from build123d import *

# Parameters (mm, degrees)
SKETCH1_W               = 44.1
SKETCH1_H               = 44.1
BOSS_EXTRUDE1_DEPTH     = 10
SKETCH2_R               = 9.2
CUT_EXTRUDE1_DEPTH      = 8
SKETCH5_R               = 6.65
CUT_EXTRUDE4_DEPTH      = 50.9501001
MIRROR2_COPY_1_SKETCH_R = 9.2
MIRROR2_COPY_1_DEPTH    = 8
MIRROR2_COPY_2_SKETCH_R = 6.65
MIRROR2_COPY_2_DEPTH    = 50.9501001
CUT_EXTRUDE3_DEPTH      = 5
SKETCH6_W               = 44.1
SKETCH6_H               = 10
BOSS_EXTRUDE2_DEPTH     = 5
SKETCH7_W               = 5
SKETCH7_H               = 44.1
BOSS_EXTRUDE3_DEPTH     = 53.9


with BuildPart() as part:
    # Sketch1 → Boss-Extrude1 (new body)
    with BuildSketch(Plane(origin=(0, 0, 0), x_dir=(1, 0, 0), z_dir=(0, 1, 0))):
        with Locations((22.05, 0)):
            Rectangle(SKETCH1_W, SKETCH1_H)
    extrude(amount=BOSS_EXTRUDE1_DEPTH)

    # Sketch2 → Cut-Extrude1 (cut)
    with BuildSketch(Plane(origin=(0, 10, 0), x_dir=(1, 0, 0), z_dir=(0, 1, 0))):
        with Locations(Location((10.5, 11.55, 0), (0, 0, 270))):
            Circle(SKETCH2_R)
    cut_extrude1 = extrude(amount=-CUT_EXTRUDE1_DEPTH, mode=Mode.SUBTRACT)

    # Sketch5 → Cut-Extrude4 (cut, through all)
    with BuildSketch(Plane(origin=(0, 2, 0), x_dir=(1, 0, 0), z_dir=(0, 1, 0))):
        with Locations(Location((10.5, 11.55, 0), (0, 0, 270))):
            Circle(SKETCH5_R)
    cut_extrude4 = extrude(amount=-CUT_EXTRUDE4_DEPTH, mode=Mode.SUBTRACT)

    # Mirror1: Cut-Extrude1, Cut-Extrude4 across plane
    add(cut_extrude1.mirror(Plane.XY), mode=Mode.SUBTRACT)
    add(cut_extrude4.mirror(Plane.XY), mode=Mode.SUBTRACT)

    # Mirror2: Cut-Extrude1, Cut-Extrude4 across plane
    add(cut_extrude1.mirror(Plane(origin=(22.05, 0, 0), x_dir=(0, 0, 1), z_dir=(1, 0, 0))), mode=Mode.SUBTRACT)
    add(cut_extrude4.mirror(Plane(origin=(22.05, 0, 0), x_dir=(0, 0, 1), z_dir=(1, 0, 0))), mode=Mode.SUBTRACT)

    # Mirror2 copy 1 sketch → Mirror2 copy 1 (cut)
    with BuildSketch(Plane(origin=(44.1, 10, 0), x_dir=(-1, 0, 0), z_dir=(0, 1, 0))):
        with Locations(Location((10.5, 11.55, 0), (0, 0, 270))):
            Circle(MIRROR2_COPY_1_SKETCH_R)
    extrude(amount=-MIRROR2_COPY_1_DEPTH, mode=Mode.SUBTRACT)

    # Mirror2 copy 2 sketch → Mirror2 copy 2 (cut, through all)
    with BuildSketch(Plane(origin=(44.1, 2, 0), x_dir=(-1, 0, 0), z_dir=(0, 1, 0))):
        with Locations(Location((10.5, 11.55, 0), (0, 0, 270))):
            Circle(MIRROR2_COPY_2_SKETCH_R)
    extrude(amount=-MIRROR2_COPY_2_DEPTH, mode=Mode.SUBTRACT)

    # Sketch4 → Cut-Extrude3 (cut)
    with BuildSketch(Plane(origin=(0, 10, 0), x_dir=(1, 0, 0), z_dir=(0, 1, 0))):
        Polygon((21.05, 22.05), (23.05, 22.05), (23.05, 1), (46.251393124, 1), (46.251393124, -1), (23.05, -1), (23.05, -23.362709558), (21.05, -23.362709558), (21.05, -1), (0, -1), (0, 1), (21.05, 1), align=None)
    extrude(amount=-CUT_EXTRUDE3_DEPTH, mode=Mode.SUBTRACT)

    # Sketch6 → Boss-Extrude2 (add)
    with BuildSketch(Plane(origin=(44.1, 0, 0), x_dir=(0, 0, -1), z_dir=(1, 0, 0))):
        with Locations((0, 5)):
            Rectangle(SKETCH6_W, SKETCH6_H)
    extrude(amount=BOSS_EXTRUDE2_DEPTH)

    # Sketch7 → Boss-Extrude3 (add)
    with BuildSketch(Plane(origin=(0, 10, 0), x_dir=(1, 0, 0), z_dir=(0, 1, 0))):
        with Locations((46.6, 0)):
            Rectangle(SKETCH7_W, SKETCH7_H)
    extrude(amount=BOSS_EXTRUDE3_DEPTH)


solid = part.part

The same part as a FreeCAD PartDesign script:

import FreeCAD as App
import Part
import Sketcher
Q = App.Units.Quantity


def add_polygon(sketch, points):
    """Adds a closed chain of lines whose ends are joined by coincident constraints."""
    first, n = sketch.GeometryCount, len(points)
    for a, b in zip(points, points[1:] + points[:1]):
        sketch.addGeometry(Part.LineSegment(App.Vector(*a, 0), App.Vector(*b, 0)), False)
    for i in range(n):
        sketch.addConstraint(Sketcher.Constraint("Coincident", first + i, 2, first + (i + 1) % n, 1))

doc = App.newDocument("Part")
body = doc.addObject("PartDesign::Body", "Body")

sketch1 = body.newObject("Sketcher::SketchObject", "Sketch")
sketch1.AttachmentSupport = (doc.getObject("XZ_Plane"), [""])
sketch1.MapMode = "FlatFace"
add_polygon(sketch1, [(0, -22), (0, 22), (44, 22), (44, -22)])
sketch1.addConstraint([
    Sketcher.Constraint("Vertical", 0),
    Sketcher.Constraint("Horizontal", 1),
    Sketcher.Constraint("Vertical", 2),
    Sketcher.Constraint("Horizontal", 3),
    Sketcher.Constraint("Symmetric", 0, 2, 3, 2, -1, 1),
    Sketcher.Constraint("Equal", 3, 0),
    Sketcher.Constraint("DistanceX", 1, 1, 1, 2, Q("44.1 mm")),
])
pad1 = body.newObject("PartDesign::Pad", "Pad")
pad1.Profile = sketch1
pad1.Length = 10
pad1.Reversed = True

sketch2 = body.newObject("Sketcher::SketchObject", "Sketch001")
sketch2.AttachmentSupport = (doc.getObject("XZ_Plane"), [""])
sketch2.MapMode = "FlatFace"
sketch2.AttachmentOffset = App.Placement(App.Vector(0, 0, -10), App.Rotation())
sketch2.addGeometry(Part.Circle(App.Vector(10, -12, 0), App.Vector(0, 0, 1), 9), False)
sketch2.addConstraint([
    Sketcher.Constraint("Diameter", 0, Q("18.4 mm")),
    Sketcher.Constraint("DistanceX", -1, 1, 0, 3, Q("10.5 mm")),
    Sketcher.Constraint("DistanceY", 0, 3, -1, 1, Q("11.55 mm")),
])
pocket1 = body.newObject("PartDesign::Pocket", "Pocket")
pocket1.Profile = sketch2
pocket1.Length = 8
pocket1.Reversed = True

sketch3 = body.newObject("Sketcher::SketchObject", "Sketch002")
sketch3.AttachmentSupport = (doc.getObject("XZ_Plane"), [""])
sketch3.MapMode = "FlatFace"
sketch3.AttachmentOffset = App.Placement(App.Vector(0, 0, -2), App.Rotation())
sketch3.addGeometry(Part.Circle(App.Vector(10, -12, 0), App.Vector(0, 0, 1), 7), False)
sketch3.addConstraint([
    Sketcher.Constraint("Diameter", 0, Q("13.3 mm")),
    Sketcher.Constraint("DistanceX", -1, 1, 0, 3, Q("10.5 mm")),
    Sketcher.Constraint("DistanceY", 0, 3, -1, 1, Q("11.55 mm")),
])
pocket2 = body.newObject("PartDesign::Pocket", "Pocket001")
pocket2.Profile = sketch3
pocket2.Type = "ThroughAll"
pocket2.Reversed = True
doc.recompute()

mirrored = body.newObject("PartDesign::Mirrored", "Mirrored")
mirrored.Originals = [pocket1, pocket2]
mirrored.MirrorPlane = (doc.getObject("XY_Plane"), [""])
body.Tip = mirrored
doc.recompute()

datumplane = body.newObject("PartDesign::Plane", "DatumPlane")
datumplane.AttachmentSupport = (doc.getObject("YZ_Plane"), [""])
datumplane.MapMode = "FlatFace"
datumplane.AttachmentOffset = App.Placement(App.Vector(0, 0, 22.05), App.Rotation())
mirrored2 = body.newObject("PartDesign::Mirrored", "Mirrored001")
mirrored2.Originals = [pocket1, pocket2]
mirrored2.MirrorPlane = (datumplane, [""])
body.Tip = mirrored2

sketch4 = body.newObject("Sketcher::SketchObject", "Sketch003")
sketch4.AttachmentSupport = (doc.getObject("XZ_Plane"), [""])
sketch4.MapMode = "FlatFace"
sketch4.AttachmentOffset = App.Placement(App.Vector(0, 0, -10), App.Rotation())
sketch4.addGeometry(Part.Circle(App.Vector(34, 12, 0), App.Vector(0, 0, 1), 9), False)
sketch4.addConstraint([
    Sketcher.Constraint("Diameter", 0, Q("18.4 mm")),
    Sketcher.Constraint("DistanceX", -1, 1, 0, 3, Q("33.6 mm")),
    Sketcher.Constraint("DistanceY", -1, 1, 0, 3, Q("11.55 mm")),
])
pocket3 = body.newObject("PartDesign::Pocket", "Pocket002")
pocket3.Profile = sketch4
pocket3.Length = 8
pocket3.Reversed = True

sketch5 = body.newObject("Sketcher::SketchObject", "Sketch004")
sketch5.AttachmentSupport = (doc.getObject("XZ_Plane"), [""])
sketch5.MapMode = "FlatFace"
sketch5.AttachmentOffset = App.Placement(App.Vector(0, 0, -2), App.Rotation())
sketch5.addGeometry(Part.Circle(App.Vector(34, 12, 0), App.Vector(0, 0, 1), 7), False)
sketch5.addConstraint([
    Sketcher.Constraint("Diameter", 0, Q("13.3 mm")),
    Sketcher.Constraint("DistanceX", -1, 1, 0, 3, Q("33.6 mm")),
    Sketcher.Constraint("DistanceY", -1, 1, 0, 3, Q("11.55 mm")),
])
pocket4 = body.newObject("PartDesign::Pocket", "Pocket003")
pocket4.Profile = sketch5
pocket4.Type = "ThroughAll"
pocket4.Reversed = True

sketch6 = body.newObject("Sketcher::SketchObject", "Sketch005")
sketch6.AttachmentSupport = (doc.getObject("XZ_Plane"), [""])
sketch6.MapMode = "FlatFace"
sketch6.AttachmentOffset = App.Placement(App.Vector(0, 0, -10), App.Rotation())
add_polygon(sketch6, [(23.1, -22.1), (21.1, -22.1), (21.1, -1), (0, -1), (0, 1), (21.1, 1), (21.1, 23.4), (23.1, 23.4), (23.1, 1), (46.3, 1), (46.3, -1), (23.1, -1)])
sketch6.addConstraint([
    Sketcher.Constraint("Horizontal", 0),
    Sketcher.Constraint("Vertical", 1),
    Sketcher.Constraint("Horizontal", 2),
    Sketcher.Constraint("Vertical", 3),
    Sketcher.Constraint("Horizontal", 4),
    Sketcher.Constraint("Vertical", 5),
    Sketcher.Constraint("Horizontal", 6),
    Sketcher.Constraint("Vertical", 7),
    Sketcher.Constraint("Horizontal", 8),
    Sketcher.Constraint("Vertical", 9),
    Sketcher.Constraint("Horizontal", 10),
    Sketcher.Constraint("Vertical", 11),
    Sketcher.Constraint("Symmetric", 2, 2, 3, 2, -1, 1),
    Sketcher.Constraint("Symmetric", 7, 2, 10, 2, -1),
    Sketcher.Constraint("Horizontal", 4, 2, 7, 2),
    Sketcher.Constraint("Vertical", 1, 2, 4, 2),
    Sketcher.Constraint("Equal", 4, 1),
    Sketcher.Constraint("Equal", 6, 3),
    Sketcher.Constraint("DistanceX", 0, 2, 0, 1, Q("2 mm")),
    Sketcher.Constraint("DistanceX", 2, 2, 2, 1, Q("21.05 mm")),
    Sketcher.Constraint("DistanceY", 5, 1, 5, 2, Q("22.36271 mm")),
    Sketcher.Constraint("DistanceX", 8, 1, 8, 2, Q("23.201393 mm")),
])
pocket5 = body.newObject("PartDesign::Pocket", "Pocket004")
pocket5.Profile = sketch6
pocket5.Length = 5
pocket5.Reversed = True

sketch7 = body.newObject("Sketcher::SketchObject", "Sketch006")
sketch7.AttachmentSupport = (doc.getObject("YZ_Plane"), [""])
sketch7.MapMode = "FlatFace"
sketch7.AttachmentOffset = App.Placement(App.Vector(0, 0, 44.1), App.Rotation())
add_polygon(sketch7, [(10, 22), (0, 22), (0, -22), (10, -22)])
sketch7.addConstraint([
    Sketcher.Constraint("Horizontal", 0),
    Sketcher.Constraint("Vertical", 1),
    Sketcher.Constraint("Horizontal", 2),
    Sketcher.Constraint("Vertical", 3),
    Sketcher.Constraint("Symmetric", 0, 2, 1, 2, -1, 1),
    Sketcher.Constraint("DistanceX", 0, 2, 0, 1, Q("10 mm")),
    Sketcher.Constraint("DistanceY", 1, 2, 1, 1, Q("44.1 mm")),
])
pad2 = body.newObject("PartDesign::Pad", "Pad001")
pad2.Profile = sketch7
pad2.Length = 5

sketch8 = body.newObject("Sketcher::SketchObject", "Sketch007")
sketch8.AttachmentSupport = (doc.getObject("XZ_Plane"), [""])
sketch8.MapMode = "FlatFace"
sketch8.AttachmentOffset = App.Placement(App.Vector(0, 0, -10), App.Rotation())
add_polygon(sketch8, [(44, -22), (44, 22), (49, 22), (49, -22)])
sketch8.addConstraint([
    Sketcher.Constraint("Vertical", 0),
    Sketcher.Constraint("Horizontal", 1),
    Sketcher.Constraint("Vertical", 2),
    Sketcher.Constraint("Horizontal", 3),
    Sketcher.Constraint("DistanceX", 1, 1, 1, 2, Q("5 mm")),
    Sketcher.Constraint("DistanceY", 0, 1, 0, 2, Q("44.1 mm")),
    Sketcher.Constraint("DistanceX", -1, 1, 0, 2, Q("44.1 mm")),
    Sketcher.Constraint("DistanceY", -1, 1, 0, 2, Q("22.05 mm")),
])
pad3 = body.newObject("PartDesign::Pad", "Pad002")
pad3.Profile = sketch8
pad3.Length = 53.9
pad3.Reversed = True

doc.recompute()
